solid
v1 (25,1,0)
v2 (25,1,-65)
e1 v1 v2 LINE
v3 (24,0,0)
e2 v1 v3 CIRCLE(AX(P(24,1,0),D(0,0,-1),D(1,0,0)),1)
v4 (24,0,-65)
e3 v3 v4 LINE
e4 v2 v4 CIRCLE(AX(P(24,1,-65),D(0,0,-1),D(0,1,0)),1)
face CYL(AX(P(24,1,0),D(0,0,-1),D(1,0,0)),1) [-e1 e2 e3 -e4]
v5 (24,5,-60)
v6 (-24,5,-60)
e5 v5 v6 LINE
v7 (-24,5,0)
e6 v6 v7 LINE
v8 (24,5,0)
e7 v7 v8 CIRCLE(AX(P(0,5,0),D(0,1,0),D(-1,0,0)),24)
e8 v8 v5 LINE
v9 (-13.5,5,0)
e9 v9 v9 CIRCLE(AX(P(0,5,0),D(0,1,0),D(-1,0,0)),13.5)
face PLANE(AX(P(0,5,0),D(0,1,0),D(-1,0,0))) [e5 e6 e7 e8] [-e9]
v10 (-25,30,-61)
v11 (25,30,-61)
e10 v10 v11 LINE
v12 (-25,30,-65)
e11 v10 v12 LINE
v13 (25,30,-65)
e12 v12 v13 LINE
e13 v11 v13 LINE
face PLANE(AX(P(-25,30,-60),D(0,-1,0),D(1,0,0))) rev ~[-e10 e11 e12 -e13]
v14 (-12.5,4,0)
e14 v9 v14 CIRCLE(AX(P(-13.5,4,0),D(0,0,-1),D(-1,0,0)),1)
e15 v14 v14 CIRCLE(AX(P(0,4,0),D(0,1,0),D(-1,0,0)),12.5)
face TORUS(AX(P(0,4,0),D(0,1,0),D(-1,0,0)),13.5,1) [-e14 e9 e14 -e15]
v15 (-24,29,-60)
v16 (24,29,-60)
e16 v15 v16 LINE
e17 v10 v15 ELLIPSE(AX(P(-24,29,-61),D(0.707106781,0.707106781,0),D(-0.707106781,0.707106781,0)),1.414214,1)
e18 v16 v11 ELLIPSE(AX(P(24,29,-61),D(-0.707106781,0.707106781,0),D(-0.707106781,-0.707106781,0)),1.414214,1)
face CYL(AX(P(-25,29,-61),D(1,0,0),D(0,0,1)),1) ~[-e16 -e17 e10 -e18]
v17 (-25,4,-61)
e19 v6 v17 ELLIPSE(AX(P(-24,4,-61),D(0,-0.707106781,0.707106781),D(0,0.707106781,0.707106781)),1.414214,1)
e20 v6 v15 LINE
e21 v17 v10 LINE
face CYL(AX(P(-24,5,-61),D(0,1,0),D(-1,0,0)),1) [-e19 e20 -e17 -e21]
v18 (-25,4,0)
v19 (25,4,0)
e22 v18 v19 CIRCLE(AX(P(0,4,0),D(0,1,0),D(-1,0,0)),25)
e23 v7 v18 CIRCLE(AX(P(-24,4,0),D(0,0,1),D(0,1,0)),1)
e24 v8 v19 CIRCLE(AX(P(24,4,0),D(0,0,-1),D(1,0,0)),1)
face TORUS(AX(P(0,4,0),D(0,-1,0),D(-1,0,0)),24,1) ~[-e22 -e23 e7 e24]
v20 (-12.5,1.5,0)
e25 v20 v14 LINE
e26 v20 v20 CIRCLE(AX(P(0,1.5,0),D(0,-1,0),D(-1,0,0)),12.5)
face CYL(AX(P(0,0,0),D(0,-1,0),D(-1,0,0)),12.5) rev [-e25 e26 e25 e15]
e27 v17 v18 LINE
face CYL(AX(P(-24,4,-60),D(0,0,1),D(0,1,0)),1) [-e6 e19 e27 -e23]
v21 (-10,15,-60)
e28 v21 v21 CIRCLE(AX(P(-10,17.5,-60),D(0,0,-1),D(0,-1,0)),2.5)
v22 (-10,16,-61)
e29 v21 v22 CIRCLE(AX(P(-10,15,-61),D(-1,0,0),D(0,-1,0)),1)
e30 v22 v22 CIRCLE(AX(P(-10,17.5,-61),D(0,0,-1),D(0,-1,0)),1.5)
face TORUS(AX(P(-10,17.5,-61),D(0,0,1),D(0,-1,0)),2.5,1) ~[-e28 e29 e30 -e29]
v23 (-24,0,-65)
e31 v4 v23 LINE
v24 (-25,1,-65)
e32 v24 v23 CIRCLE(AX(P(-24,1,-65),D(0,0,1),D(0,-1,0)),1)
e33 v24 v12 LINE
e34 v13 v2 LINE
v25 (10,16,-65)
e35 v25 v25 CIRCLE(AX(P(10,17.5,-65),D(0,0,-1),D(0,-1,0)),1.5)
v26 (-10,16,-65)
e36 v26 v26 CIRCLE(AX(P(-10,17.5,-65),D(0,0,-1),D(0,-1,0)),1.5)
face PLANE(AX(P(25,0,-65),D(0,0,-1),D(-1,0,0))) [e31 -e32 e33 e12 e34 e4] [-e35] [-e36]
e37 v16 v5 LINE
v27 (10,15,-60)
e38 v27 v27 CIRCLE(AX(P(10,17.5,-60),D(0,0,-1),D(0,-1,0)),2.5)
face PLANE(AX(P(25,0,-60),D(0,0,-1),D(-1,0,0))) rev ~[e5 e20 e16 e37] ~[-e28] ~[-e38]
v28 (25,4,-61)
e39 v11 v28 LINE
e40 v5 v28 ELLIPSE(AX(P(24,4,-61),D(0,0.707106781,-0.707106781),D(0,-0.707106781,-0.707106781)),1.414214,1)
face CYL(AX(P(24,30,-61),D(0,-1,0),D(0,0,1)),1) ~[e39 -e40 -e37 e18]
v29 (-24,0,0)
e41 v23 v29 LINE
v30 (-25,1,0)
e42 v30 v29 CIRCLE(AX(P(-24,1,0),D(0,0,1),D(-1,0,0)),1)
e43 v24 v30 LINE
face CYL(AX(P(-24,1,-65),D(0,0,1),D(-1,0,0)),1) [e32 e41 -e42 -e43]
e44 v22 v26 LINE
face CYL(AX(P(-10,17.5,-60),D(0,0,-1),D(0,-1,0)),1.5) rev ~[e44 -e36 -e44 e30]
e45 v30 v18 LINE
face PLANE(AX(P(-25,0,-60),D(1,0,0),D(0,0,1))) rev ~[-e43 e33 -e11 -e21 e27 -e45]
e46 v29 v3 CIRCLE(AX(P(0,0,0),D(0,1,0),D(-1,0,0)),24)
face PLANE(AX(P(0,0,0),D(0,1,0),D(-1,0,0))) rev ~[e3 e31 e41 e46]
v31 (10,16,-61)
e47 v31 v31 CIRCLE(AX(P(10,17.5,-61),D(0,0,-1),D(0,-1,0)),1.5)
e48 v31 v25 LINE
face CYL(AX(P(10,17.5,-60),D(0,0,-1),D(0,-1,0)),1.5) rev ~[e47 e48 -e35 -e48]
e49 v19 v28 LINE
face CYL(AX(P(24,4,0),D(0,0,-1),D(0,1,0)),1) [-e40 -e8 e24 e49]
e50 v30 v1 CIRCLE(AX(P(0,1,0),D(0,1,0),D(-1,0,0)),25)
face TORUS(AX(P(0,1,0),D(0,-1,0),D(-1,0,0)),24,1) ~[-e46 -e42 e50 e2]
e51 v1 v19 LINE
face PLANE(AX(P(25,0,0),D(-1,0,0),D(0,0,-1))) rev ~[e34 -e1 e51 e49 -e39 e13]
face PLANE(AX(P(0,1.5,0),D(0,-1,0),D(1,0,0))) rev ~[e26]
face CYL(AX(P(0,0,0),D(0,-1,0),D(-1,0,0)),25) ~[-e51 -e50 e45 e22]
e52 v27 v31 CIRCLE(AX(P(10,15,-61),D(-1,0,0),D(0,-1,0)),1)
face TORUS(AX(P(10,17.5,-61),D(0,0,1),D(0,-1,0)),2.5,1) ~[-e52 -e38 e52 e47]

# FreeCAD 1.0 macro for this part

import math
import FreeCAD as App
import Part
import Sketcher

V = App.Vector
Q = App.Units.Quantity


def edges_at(feature, points):
    """Names of the edges that pass closest to the given points."""
    edges = feature.Shape.Edges
    near = lambda p: min(range(len(edges)), key=lambda i: edges[i].distToShape(Part.Vertex(*p))[0])
    return sorted({f"Edge{near(p) + 1}" for p in points})


def add_polygon(sketch, points):
    """Adds a closed chain of lines whose ends are joined by coincident constraints."""
    first, n = sketch.GeometryCount, len(points)
    for a, b in zip(points, points[1:] + points[:1]):
        sketch.addGeometry(Part.LineSegment(App.Vector(*a, 0), App.Vector(*b, 0)), False)
    for i in range(n):
        sketch.addConstraint(Sketcher.Constraint("Coincident", first + i, 2, first + (i + 1) % n, 1))

doc = App.newDocument("Part")
body = doc.addObject("PartDesign::Body", "Body")

# Sketch on XZ plane
sketch1 = body.newObject("Sketcher::SketchObject", "Sketch")
sketch1.AttachmentSupport = (doc.getObject("XZ_Plane"), [""])
sketch1.MapMode = "FlatFace"
sketch1.addGeometry([
    Part.LineSegment(V(-25, -60, 0), V(-25, 0, 0)),  # 0
    Part.ArcOfCircle(Part.Circle(V(0, 0, 0), V(0, 0, 1), 25), math.radians(0), math.radians(180)),  # 1
    Part.LineSegment(V(25, 0, 0), V(25, -60, 0)),  # 2
    Part.LineSegment(V(25, -60, 0), V(-25, -60, 0)),  # 3
    Part.Circle(V(0, 0, 0), V(0, 0, 1), 12),  # 4
], False)
sketch1.addConstraint([
    Sketcher.Constraint("Tangent", 0, 2, 1, 2),
    Sketcher.Constraint("Tangent", 1, 1, 2, 1),
    Sketcher.Constraint("Coincident", 2, 2, 3, 1),
    Sketcher.Constraint("Coincident", 3, 2, 0, 1),
    Sketcher.Constraint("Vertical", 0),
    Sketcher.Constraint("Vertical", 2),
    Sketcher.Constraint("Horizontal", 3),
    Sketcher.Constraint("Coincident", 1, 3, -1, 1),
    Sketcher.Constraint("Coincident", 4, 3, -1, 1),
    Sketcher.Constraint("Diameter", 4, Q("25 mm")),
    Sketcher.Constraint("Radius", 1, Q("25 mm")),
    Sketcher.Constraint("DistanceY", 0, 1, 0, 2, Q("60 mm")),
])
pad1 = body.newObject("PartDesign::Pad", "Pad")
pad1.Profile = sketch1
pad1.Length = 5
pad1.Reversed = True

# Sketch on XY plane
sketch2 = body.newObject("Sketcher::SketchObject", "Sketch001")
sketch2.AttachmentSupport = (doc.getObject("XY_Plane"), [""])
sketch2.MapMode = "FlatFace"
sketch2.AttachmentOffset = App.Placement(V(0, 0, -60), App.Rotation())
add_polygon(sketch2, [(25, 30), (25, 0), (-25, 0), (-25, 30)])  # lines 0-3
sketch2.addConstraint([
    Sketcher.Constraint("Vertical", 0),
    Sketcher.Constraint("Horizontal", 1),
    Sketcher.Constraint("Vertical", 2),
    Sketcher.Constraint("Horizontal", 3),
    Sketcher.Constraint("Symmetric", 0, 2, 1, 2, -1, 1),
    Sketcher.Constraint("DistanceY", 0, 2, 0, 1, Q("30 mm")),
    Sketcher.Constraint("DistanceX", 1, 2, 1, 1, Q("50 mm")),
])
pad2 = body.newObject("PartDesign::Pad", "Pad001")
pad2.Profile = sketch2
pad2.Length = 5
pad2.Reversed = True

# Sketch on XY plane
sketch3 = body.newObject("Sketcher::SketchObject", "Sketch002")
sketch3.AttachmentSupport = (doc.getObject("XY_Plane"), [""])
sketch3.MapMode = "FlatFace"
sketch3.AttachmentOffset = App.Placement(V(0, 0, -60), App.Rotation())
sketch3.addGeometry(Part.Circle(V(-10, 17.5, 0), V(0, 0, 1), 1.5), False)
sketch3.addConstraint([
    Sketcher.Constraint("Diameter", 0, Q("3 mm")),
    Sketcher.Constraint("DistanceX", 0, 3, -1, 1, Q("10 mm")),
    Sketcher.Constraint("DistanceY", -1, 1, 0, 3, Q("17.5 mm")),
])
doc.recompute()
hole = body.newObject("PartDesign::Hole", "Hole")
hole.Profile = sketch3
hole.ThreadType = "None"
hole.Diameter = 3
hole.DepthType = "ThroughAll"

# Sketch on XY plane
sketch4 = body.newObject("Sketcher::SketchObject", "Sketch003")
sketch4.AttachmentSupport = (doc.getObject("XY_Plane"), [""])
sketch4.MapMode = "FlatFace"
sketch4.AttachmentOffset = App.Placement(V(0, 0, -60), App.Rotation())
sketch4.addGeometry(Part.Circle(V(10, 17.5, 0), V(0, 0, 1), 1.5), False)
sketch4.addConstraint([
    Sketcher.Constraint("Diameter", 0, Q("3 mm")),
    Sketcher.Constraint("DistanceX", -1, 1, 0, 3, Q("10 mm")),
    Sketcher.Constraint("DistanceY", -1, 1, 0, 3, Q("17.5 mm")),
])
doc.recompute()
hole2 = body.newObject("PartDesign::Hole", "Hole001")
hole2.Profile = sketch4
hole2.ThreadType = "None"
hole2.Diameter = 3
hole2.DepthType = "ThroughAll"
doc.recompute()

fillet = body.newObject("PartDesign::Fillet", "Fillet")
fillet.Base = (hole2, edges_at(hole2, [(10, 19, -60)]))
fillet.Radius = 1
doc.recompute()

fillet2 = body.newObject("PartDesign::Fillet", "Fillet001")
fillet2.Base = (fillet, edges_at(fillet, [(-10, 19, -60)]))
fillet2.Radius = 1
doc.recompute()

fillet3 = body.newObject("PartDesign::Fillet", "Fillet002")
fillet3.Base = (fillet2, edges_at(fillet2, [(12.5, 5, 0), (12.5, 0, 0)]))
fillet3.Radius = 1
doc.recompute()

fillet4 = body.newObject("PartDesign::Fillet", "Fillet003")
fillet4.Base = (fillet3, edges_at(fillet3, [
    (25, 5, -30),
    (-25, 5, -30),
    (0, 5, 25),
    (25, 17.5, -60),
    (-25, 17.5, -60),
    (0, 30, -60),
    (0, 0, 25),
    (-25, 0, -32.5),
    (25, 0, -32.5),
]))
fillet4.Radius = 1

# Sketch on XZ plane
sketch5 = body.newObject("Sketcher::SketchObject", "Sketch004")
sketch5.AttachmentSupport = (doc.getObject("XZ_Plane"), [""])
sketch5.MapMode = "FlatFace"
sketch5.addGeometry(Part.Circle(V(0, 0, 0), V(0, 0, 1), 18), False)
sketch5.addConstraint([
    Sketcher.Constraint("Coincident", 0, 3, -1, 1),
    Sketcher.Constraint("Diameter", 0, Q("35.4578 mm")),
])
pad3 = body.newObject("PartDesign::Pad", "Pad002")
pad3.Profile = sketch5
pad3.Length = 1.5
pad3.Reversed = True

doc.recompute()
